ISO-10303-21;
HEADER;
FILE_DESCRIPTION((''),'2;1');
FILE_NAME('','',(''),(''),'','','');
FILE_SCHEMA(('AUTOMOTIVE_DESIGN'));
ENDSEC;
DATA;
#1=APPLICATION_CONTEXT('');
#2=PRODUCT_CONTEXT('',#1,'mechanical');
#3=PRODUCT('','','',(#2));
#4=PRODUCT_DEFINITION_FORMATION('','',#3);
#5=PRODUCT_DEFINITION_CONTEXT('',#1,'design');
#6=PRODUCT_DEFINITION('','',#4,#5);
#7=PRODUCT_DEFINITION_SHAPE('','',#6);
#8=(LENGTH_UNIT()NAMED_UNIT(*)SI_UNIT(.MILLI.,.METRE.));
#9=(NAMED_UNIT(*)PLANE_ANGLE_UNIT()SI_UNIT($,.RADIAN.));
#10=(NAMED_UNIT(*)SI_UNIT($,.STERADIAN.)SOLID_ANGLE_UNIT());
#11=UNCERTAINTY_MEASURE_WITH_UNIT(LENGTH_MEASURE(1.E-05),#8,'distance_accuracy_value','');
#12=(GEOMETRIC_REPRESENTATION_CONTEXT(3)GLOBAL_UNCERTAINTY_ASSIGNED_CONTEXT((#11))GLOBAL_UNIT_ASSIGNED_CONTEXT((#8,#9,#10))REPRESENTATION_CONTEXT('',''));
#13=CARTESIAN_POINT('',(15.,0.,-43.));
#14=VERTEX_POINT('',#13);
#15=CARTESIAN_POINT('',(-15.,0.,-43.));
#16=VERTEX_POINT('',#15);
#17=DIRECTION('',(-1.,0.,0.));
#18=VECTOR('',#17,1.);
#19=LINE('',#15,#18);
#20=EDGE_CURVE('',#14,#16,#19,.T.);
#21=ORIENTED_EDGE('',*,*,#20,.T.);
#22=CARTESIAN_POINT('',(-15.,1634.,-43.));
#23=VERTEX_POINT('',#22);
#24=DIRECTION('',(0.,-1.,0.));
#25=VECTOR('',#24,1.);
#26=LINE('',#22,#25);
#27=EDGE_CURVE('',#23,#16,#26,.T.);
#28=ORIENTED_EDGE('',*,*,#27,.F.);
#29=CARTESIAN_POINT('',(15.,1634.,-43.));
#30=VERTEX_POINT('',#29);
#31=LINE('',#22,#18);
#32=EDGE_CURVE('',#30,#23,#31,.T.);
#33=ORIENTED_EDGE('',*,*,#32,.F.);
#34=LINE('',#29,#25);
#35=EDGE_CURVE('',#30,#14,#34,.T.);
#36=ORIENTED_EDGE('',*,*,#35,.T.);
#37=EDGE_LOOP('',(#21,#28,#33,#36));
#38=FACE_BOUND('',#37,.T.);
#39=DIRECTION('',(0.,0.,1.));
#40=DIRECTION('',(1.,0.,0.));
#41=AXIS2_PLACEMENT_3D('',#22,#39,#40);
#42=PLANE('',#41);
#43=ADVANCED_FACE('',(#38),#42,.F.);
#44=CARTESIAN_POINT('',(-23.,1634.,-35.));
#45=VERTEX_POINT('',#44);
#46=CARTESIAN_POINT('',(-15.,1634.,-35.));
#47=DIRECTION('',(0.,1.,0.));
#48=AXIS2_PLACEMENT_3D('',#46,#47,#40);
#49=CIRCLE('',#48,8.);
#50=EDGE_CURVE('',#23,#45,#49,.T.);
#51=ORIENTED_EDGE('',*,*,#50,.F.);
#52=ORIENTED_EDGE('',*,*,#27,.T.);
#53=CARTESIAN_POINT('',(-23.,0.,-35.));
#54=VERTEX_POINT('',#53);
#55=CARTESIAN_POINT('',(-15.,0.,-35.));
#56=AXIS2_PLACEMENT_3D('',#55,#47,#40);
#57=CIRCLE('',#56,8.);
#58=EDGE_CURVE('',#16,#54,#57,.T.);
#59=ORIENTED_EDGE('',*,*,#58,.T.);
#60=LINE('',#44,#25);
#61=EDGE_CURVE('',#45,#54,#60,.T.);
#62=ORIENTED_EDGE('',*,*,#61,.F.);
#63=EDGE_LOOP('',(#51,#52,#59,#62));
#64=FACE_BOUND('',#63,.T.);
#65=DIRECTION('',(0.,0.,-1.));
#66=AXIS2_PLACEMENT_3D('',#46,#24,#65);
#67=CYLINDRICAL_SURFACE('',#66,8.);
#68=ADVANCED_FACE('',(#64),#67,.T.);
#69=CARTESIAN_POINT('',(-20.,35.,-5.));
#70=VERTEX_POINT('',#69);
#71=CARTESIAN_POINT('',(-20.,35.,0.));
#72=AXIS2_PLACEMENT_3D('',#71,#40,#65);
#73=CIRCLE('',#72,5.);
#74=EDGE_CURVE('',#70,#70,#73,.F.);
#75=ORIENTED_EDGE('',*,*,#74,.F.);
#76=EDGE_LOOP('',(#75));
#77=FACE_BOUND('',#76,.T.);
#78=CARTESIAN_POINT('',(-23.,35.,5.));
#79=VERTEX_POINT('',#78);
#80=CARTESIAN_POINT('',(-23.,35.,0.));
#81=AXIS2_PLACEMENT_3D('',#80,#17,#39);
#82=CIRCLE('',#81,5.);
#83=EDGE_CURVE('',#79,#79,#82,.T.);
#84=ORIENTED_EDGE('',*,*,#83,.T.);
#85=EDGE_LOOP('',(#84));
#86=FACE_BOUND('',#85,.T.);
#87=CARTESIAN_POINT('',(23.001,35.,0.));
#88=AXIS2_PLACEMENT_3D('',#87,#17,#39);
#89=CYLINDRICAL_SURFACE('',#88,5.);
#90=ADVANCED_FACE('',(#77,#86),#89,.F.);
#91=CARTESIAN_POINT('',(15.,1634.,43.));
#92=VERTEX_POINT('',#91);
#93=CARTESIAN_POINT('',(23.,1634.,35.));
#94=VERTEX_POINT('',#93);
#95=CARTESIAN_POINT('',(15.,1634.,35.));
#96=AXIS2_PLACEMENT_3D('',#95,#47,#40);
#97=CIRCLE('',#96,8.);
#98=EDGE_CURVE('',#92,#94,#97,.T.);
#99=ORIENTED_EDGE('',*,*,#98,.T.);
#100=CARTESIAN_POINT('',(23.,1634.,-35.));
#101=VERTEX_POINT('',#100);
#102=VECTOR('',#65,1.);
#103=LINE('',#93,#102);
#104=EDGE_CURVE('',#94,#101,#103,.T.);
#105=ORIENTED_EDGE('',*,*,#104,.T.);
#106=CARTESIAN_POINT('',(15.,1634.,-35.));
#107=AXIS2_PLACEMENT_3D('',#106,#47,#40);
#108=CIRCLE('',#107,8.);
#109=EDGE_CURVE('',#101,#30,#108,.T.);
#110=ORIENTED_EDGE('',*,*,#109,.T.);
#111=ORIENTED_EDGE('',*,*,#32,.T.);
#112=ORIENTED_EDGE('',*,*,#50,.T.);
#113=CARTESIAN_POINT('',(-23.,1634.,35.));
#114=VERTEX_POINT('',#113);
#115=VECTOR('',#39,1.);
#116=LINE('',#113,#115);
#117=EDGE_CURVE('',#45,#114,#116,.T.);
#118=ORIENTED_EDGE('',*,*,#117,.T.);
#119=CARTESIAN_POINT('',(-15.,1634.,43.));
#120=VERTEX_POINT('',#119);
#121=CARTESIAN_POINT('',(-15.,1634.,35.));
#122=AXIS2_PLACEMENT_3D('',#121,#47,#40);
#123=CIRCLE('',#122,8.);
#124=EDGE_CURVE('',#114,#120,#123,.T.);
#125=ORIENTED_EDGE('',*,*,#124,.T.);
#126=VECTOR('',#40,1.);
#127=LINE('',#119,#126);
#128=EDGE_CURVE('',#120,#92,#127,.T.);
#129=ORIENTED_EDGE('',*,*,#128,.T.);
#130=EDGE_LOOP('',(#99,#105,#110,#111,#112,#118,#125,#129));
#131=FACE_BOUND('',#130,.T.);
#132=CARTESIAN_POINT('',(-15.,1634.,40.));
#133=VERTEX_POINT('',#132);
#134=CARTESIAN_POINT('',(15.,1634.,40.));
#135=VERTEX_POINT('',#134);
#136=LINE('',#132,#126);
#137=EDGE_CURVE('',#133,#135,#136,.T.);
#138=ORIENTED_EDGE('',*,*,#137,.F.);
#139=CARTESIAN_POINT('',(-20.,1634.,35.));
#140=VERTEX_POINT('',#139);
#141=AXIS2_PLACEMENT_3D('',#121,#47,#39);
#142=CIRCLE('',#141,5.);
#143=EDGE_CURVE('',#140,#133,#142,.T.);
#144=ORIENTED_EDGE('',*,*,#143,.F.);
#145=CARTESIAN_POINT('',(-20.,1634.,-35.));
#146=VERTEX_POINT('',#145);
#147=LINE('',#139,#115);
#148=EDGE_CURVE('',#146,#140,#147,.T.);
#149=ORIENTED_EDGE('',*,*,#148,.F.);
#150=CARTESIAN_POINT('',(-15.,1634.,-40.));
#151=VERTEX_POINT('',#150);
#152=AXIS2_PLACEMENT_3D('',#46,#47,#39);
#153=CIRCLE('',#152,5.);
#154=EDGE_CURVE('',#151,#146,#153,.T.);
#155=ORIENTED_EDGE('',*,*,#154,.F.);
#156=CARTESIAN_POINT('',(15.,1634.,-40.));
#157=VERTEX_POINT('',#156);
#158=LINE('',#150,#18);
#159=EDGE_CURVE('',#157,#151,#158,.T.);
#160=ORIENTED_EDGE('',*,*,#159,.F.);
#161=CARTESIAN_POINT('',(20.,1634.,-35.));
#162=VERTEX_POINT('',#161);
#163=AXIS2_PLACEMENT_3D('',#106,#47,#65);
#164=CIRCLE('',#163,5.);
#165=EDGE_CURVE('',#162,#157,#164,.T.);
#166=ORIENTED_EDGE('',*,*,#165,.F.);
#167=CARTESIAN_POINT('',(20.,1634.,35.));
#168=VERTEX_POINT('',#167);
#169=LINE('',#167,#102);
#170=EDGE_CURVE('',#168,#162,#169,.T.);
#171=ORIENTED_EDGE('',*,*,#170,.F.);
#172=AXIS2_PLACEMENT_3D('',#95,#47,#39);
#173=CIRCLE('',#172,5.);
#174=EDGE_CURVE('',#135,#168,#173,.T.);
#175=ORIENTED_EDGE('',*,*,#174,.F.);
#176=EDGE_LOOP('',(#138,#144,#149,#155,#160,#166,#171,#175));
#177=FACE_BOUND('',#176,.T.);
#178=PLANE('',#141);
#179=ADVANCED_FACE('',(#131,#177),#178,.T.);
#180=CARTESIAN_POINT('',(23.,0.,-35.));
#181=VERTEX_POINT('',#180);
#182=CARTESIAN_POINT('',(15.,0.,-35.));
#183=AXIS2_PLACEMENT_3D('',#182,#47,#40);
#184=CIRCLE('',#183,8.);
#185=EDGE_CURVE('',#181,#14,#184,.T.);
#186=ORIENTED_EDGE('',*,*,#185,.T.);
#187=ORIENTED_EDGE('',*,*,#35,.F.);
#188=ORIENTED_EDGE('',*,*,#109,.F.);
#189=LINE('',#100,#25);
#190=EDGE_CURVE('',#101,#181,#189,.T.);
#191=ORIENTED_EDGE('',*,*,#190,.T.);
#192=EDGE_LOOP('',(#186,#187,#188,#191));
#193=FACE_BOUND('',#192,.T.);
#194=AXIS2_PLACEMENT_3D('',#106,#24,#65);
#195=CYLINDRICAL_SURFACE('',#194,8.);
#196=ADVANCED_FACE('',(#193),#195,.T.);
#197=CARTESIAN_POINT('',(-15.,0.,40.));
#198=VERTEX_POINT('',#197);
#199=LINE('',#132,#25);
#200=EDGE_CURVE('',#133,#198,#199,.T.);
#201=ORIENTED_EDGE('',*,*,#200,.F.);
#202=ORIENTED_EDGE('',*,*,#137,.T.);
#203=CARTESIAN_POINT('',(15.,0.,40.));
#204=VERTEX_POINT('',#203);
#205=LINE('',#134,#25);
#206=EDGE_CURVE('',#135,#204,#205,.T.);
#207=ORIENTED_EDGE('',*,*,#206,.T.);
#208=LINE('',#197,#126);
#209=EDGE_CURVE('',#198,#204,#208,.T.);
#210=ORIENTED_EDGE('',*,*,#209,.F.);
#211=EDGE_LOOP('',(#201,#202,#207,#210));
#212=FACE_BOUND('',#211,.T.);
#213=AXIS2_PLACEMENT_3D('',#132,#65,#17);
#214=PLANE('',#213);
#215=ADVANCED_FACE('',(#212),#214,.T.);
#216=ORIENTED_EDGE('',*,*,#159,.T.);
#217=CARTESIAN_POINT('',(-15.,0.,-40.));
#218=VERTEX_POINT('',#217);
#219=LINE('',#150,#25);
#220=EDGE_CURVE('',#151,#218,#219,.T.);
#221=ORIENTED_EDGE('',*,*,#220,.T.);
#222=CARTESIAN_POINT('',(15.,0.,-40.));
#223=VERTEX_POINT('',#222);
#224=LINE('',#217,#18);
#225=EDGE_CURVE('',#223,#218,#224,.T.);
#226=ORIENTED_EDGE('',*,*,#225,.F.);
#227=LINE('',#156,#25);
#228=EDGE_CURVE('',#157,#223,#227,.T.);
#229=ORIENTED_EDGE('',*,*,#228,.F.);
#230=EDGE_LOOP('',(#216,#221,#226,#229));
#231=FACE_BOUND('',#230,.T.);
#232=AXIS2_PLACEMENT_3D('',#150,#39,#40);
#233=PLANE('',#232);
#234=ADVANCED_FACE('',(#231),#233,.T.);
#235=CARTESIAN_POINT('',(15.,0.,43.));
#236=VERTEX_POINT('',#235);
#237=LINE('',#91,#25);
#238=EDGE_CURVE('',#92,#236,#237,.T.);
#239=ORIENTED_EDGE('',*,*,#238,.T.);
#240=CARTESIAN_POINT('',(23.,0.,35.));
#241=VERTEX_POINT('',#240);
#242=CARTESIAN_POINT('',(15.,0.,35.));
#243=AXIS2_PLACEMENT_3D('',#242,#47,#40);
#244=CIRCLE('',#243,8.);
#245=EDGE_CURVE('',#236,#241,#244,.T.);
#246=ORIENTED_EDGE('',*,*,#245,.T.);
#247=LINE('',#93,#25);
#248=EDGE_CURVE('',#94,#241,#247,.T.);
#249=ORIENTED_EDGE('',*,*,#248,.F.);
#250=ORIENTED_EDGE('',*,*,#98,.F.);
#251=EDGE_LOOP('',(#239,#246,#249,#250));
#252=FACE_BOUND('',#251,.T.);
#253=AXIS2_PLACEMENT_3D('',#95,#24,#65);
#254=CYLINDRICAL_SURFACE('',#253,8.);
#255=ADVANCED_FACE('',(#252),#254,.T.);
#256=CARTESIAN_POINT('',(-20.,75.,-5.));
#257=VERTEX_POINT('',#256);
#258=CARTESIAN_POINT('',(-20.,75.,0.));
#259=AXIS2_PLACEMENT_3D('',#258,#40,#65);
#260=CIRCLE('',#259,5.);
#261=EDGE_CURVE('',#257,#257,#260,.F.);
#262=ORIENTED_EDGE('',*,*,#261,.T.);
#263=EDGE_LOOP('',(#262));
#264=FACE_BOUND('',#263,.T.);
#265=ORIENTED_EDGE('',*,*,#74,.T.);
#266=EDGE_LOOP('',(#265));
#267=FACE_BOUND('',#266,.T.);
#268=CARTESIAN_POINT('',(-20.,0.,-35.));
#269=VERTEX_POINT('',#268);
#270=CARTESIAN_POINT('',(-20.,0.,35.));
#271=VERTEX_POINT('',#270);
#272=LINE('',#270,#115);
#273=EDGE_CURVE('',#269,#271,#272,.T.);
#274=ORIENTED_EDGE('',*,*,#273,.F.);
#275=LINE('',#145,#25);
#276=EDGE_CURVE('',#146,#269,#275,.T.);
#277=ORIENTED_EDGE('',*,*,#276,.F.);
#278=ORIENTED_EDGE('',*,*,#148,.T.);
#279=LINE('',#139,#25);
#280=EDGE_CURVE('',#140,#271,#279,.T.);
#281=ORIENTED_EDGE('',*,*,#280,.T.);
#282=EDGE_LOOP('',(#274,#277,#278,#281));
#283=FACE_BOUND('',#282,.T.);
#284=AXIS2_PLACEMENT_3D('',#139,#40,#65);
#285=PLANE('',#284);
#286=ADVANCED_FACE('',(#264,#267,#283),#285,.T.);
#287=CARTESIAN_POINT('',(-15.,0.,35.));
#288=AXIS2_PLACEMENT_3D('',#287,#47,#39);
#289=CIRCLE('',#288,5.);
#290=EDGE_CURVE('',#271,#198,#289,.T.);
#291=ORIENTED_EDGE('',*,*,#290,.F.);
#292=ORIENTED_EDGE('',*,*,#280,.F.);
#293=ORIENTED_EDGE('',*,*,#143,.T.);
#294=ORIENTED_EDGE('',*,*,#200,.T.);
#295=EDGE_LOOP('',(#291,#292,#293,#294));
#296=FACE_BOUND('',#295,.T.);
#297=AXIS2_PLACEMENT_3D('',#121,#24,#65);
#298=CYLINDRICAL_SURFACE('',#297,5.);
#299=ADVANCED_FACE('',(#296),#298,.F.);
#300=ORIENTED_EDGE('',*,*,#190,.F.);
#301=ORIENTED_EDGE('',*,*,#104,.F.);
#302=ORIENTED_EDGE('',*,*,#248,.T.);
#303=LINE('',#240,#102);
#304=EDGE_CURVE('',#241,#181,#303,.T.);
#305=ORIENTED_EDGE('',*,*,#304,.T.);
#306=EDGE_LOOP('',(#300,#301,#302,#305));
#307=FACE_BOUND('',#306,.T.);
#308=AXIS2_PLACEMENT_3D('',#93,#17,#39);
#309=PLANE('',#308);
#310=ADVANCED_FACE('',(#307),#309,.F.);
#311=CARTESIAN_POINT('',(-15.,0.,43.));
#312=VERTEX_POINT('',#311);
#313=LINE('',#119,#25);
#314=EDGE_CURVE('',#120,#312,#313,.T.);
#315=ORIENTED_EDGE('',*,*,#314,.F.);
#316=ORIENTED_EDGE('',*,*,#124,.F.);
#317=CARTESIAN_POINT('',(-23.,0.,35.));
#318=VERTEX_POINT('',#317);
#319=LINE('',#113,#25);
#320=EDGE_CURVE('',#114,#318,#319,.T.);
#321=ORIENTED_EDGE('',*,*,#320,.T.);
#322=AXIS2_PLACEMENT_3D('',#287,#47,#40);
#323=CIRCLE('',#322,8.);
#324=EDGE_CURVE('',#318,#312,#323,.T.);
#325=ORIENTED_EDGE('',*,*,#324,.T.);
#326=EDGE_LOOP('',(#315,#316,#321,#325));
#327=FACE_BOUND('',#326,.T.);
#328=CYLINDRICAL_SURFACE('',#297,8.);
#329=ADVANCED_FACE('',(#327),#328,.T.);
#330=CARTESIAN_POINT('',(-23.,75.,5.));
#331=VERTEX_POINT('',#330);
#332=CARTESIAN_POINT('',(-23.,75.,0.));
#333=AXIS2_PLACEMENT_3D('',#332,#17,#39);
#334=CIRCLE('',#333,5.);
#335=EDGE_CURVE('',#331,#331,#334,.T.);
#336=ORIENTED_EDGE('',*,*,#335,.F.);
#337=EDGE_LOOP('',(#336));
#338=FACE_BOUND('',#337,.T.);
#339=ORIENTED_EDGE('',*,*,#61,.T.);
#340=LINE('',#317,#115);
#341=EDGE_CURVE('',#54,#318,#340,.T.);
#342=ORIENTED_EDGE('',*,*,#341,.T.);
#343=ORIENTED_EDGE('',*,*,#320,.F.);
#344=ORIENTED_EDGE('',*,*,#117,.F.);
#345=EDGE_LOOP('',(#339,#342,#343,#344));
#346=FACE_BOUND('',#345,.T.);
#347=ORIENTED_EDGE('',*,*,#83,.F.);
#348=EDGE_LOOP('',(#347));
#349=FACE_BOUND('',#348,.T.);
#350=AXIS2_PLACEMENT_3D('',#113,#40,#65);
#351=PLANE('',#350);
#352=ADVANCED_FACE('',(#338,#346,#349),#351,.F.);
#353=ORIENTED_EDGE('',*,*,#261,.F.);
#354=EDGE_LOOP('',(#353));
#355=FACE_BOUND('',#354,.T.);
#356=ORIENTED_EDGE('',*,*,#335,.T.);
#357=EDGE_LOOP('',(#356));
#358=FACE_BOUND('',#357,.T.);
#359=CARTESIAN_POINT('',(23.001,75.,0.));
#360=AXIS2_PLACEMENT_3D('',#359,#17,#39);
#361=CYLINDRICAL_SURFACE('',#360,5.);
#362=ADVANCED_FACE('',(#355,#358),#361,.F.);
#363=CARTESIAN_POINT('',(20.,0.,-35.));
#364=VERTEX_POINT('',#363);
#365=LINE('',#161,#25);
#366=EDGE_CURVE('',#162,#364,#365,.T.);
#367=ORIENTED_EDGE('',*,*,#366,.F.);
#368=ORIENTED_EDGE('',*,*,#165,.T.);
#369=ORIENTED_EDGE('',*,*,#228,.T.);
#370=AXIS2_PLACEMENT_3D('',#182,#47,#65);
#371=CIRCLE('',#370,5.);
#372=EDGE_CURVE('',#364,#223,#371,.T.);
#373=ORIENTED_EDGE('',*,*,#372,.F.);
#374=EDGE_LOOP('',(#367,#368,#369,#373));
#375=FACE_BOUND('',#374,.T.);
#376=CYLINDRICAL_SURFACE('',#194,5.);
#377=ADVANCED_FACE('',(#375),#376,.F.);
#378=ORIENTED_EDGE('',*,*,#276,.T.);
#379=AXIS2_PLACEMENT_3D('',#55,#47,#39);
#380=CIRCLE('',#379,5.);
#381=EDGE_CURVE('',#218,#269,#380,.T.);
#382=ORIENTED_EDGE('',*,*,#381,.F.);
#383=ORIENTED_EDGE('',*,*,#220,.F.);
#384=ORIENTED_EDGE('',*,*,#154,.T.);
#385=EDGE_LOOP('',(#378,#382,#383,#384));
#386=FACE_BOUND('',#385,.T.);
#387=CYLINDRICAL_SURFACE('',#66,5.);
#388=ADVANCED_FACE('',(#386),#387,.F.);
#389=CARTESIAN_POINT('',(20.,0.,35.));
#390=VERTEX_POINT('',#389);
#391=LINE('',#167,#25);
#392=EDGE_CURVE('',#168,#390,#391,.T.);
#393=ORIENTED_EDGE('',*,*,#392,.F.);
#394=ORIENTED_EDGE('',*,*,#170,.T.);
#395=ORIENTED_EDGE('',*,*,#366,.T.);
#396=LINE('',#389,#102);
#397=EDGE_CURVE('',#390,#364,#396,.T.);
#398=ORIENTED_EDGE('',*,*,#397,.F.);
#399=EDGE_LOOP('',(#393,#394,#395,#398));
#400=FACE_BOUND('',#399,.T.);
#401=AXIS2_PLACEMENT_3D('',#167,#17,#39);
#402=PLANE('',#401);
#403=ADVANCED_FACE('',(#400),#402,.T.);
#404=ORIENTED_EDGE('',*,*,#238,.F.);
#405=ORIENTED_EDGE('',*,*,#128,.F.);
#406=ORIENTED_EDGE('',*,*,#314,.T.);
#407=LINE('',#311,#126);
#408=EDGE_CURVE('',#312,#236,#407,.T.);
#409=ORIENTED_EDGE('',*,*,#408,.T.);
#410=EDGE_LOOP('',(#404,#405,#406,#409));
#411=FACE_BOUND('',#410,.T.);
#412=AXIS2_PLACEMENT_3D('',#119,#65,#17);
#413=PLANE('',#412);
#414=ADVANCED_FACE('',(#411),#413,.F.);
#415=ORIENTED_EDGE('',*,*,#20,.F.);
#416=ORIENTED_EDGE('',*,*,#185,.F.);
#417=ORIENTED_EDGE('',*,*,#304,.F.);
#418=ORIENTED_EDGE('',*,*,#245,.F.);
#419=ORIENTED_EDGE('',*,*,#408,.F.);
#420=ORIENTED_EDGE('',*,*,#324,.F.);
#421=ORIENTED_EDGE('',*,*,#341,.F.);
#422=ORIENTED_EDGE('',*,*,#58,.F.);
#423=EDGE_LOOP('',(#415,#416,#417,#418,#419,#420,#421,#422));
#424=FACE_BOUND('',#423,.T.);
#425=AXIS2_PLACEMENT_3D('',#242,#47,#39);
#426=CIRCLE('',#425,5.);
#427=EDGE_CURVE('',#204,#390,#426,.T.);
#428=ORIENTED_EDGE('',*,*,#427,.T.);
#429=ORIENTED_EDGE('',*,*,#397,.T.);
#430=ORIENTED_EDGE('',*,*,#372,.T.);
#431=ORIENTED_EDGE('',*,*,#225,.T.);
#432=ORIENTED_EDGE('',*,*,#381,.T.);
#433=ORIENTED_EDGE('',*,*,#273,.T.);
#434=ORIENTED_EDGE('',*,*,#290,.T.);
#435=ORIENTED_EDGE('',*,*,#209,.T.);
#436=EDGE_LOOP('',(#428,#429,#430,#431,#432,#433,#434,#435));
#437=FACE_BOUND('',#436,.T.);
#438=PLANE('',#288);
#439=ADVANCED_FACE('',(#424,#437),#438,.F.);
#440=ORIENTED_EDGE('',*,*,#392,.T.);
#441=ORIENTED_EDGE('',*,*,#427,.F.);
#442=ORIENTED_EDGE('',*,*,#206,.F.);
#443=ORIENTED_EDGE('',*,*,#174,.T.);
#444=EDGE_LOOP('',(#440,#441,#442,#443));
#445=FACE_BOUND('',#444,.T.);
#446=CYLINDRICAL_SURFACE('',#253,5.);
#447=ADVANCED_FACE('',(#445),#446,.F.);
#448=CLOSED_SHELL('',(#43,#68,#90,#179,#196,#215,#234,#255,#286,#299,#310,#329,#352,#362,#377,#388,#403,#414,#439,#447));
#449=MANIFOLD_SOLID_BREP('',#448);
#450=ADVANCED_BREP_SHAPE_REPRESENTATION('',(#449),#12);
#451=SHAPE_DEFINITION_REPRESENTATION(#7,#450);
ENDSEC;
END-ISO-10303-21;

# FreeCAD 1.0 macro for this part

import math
import FreeCAD as App
import Part
import Sketcher
from FreeCAD import Vector

doc = App.newDocument("Part")
body = doc.addObject("PartDesign::Body", "Body")

# Sketch on XZ plane
sketch1 = body.newObject("Sketcher::SketchObject", "Sketch")
sketch1.AttachmentSupport = (doc.getObject("XZ_Plane"), [""])
sketch1.MapMode = "FlatFace"
sketch1.addGeometry(Part.LineSegment(Vector(-23, -35, 0), Vector(-23, 35, 0)), False)
sketch1.addGeometry(Part.ArcOfCircle(Part.Circle(Vector(-15, 35, 0), Vector(0, 0, 1), 8), math.radians(90), math.radians(180)), False)
sketch1.addGeometry(Part.LineSegment(Vector(-15, 43, 0), Vector(15, 43, 0)), False)
sketch1.addGeometry(Part.ArcOfCircle(Part.Circle(Vector(15, 35, 0), Vector(0, 0, 1), 8), math.radians(0), math.radians(90)), False)
sketch1.addGeometry(Part.LineSegment(Vector(23, 35, 0), Vector(23, -35, 0)), False)
sketch1.addGeometry(Part.ArcOfCircle(Part.Circle(Vector(15, -35, 0), Vector(0, 0, 1), 8), math.radians(-90), math.radians(0)), False)
sketch1.addGeometry(Part.LineSegment(Vector(15, -43, 0), Vector(-15, -43, 0)), False)
sketch1.addGeometry(Part.ArcOfCircle(Part.Circle(Vector(-15, -35, 0), Vector(0, 0, 1), 8), math.radians(-180), math.radians(-90)), False)
sketch1.addGeometry(Part.LineSegment(Vector(-20, 35, 0), Vector(-20, -35, 0)), False)
sketch1.addGeometry(Part.ArcOfCircle(Part.Circle(Vector(-15, -35, 0), Vector(0, 0, 1), 5), math.radians(180), math.radians(270)), False)
sketch1.addGeometry(Part.LineSegment(Vector(-15, -40, 0), Vector(15, -40, 0)), False)
sketch1.addGeometry(Part.ArcOfCircle(Part.Circle(Vector(15, -35, 0), Vector(0, 0, 1), 5), math.radians(-90), math.radians(0)), False)
sketch1.addGeometry(Part.LineSegment(Vector(20, -35, 0), Vector(20, 35, 0)), False)
sketch1.addGeometry(Part.ArcOfCircle(Part.Circle(Vector(15, 35, 0), Vector(0, 0, 1), 5), math.radians(0), math.radians(90)), False)
sketch1.addGeometry(Part.LineSegment(Vector(15, 40, 0), Vector(-15, 40, 0)), False)
sketch1.addGeometry(Part.ArcOfCircle(Part.Circle(Vector(-15, 35, 0), Vector(0, 0, 1), 5), math.radians(90), math.radians(180)), False)
sketch1.addConstraint(Sketcher.Constraint("Tangent", 0, 2, 1, 2))
sketch1.addConstraint(Sketcher.Constraint("Tangent", 1, 1, 2, 1))
sketch1.addConstraint(Sketcher.Constraint("Tangent", 2, 2, 3, 2))
sketch1.addConstraint(Sketcher.Constraint("Tangent", 3, 1, 4, 1))
sketch1.addConstraint(Sketcher.Constraint("Tangent", 4, 2, 5, 2))
sketch1.addConstraint(Sketcher.Constraint("Tangent", 5, 1, 6, 1))
sketch1.addConstraint(Sketcher.Constraint("Tangent", 6, 2, 7, 2))
sketch1.addConstraint(Sketcher.Constraint("Tangent", 7, 1, 0, 1))
sketch1.addConstraint(Sketcher.Constraint("Tangent", 8, 2, 9, 1))
sketch1.addConstraint(Sketcher.Constraint("Tangent", 9, 2, 10, 1))
sketch1.addConstraint(Sketcher.Constraint("Tangent", 10, 2, 11, 1))
sketch1.addConstraint(Sketcher.Constraint("Tangent", 11, 2, 12, 1))
sketch1.addConstraint(Sketcher.Constraint("Tangent", 12, 2, 13, 1))
sketch1.addConstraint(Sketcher.Constraint("Tangent", 13, 2, 14, 1))
sketch1.addConstraint(Sketcher.Constraint("Tangent", 14, 2, 15, 1))
sketch1.addConstraint(Sketcher.Constraint("Tangent", 15, 2, 8, 1))
sketch1.addConstraint(Sketcher.Constraint("Vertical", 0))
sketch1.addConstraint(Sketcher.Constraint("Horizontal", 2))
sketch1.addConstraint(Sketcher.Constraint("Vertical", 4))
sketch1.addConstraint(Sketcher.Constraint("Horizontal", 6))
sketch1.addConstraint(Sketcher.Constraint("Vertical", 8))
sketch1.addConstraint(Sketcher.Constraint("Horizontal", 10))
sketch1.addConstraint(Sketcher.Constraint("Vertical", 12))
sketch1.addConstraint(Sketcher.Constraint("Horizontal", 14))
sketch1.addConstraint(Sketcher.Constraint("Coincident", 9, 3, 7, 3))
sketch1.addConstraint(Sketcher.Constraint("Coincident", 11, 3, 5, 3))
sketch1.addConstraint(Sketcher.Constraint("Coincident", 13, 3, 3, 3))
sketch1.addConstraint(Sketcher.Constraint("Equal", 1, 3))
sketch1.addConstraint(Sketcher.Constraint("Equal", 3, 5))
sketch1.addConstraint(Sketcher.Constraint("Equal", 5, 7))
sketch1.addConstraint(Sketcher.Constraint("Equal", 13, 15))
sketch1.addConstraint(Sketcher.Constraint("Symmetric", 1, 3, 5, 3, -1, 1))
sketch1.addConstraint(Sketcher.Constraint("Radius", 1, 8.0))
sketch1.addConstraint(Sketcher.Constraint("Radius", 9, 5.0))
sketch1.addConstraint(Sketcher.Constraint("DistanceX", 2, 1, 2, 2, 30.0))
sketch1.addConstraint(Sketcher.Constraint("DistanceY", 0, 1, 0, 2, 70.0))
pad1 = body.newObject("PartDesign::Pad", "Pad")
pad1.Profile = sketch1
pad1.Length = 1634
pad1.Reversed = True

# Sketch on YZ plane
sketch2 = body.newObject("Sketcher::SketchObject", "Sketch001")
sketch2.AttachmentSupport = (doc.getObject("YZ_Plane"), [""])
sketch2.MapMode = "FlatFace"
sketch2.AttachmentOffset = App.Placement(Vector(0, 0, -23), App.Rotation())
sketch2.addGeometry(Part.Circle(Vector(35, 0, 0), Vector(0, 0, 1), 5), False)
sketch2.addConstraint(Sketcher.Constraint("PointOnObject", 0, 3, -1))
sketch2.addConstraint(Sketcher.Constraint("Diameter", 0, 10.0))
sketch2.addConstraint(Sketcher.Constraint("DistanceX", -1, 1, 0, 3, 35.0))
pocket1 = body.newObject("PartDesign::Pocket", "Pocket")
pocket1.Profile = sketch2
pocket1.Type = "UpToFirst"
pocket1.Reversed = True

# Sketch on YZ plane
sketch3 = body.newObject("Sketcher::SketchObject", "Sketch002")
sketch3.AttachmentSupport = (doc.getObject("YZ_Plane"), [""])
sketch3.MapMode = "FlatFace"
sketch3.AttachmentOffset = App.Placement(Vector(0, 0, -23), App.Rotation())
sketch3.addGeometry(Part.Circle(Vector(75, 0, 0), Vector(0, 0, 1), 5), False)
sketch3.addConstraint(Sketcher.Constraint("PointOnObject", 0, 3, -1))
sketch3.addConstraint(Sketcher.Constraint("Diameter", 0, 10.0))
sketch3.addConstraint(Sketcher.Constraint("DistanceX", -1, 1, 0, 3, 75.0))
pocket2 = body.newObject("PartDesign::Pocket", "Pocket001")
pocket2.Profile = sketch3
pocket2.Type = "UpToFirst"
pocket2.Reversed = True

doc.recompute()
